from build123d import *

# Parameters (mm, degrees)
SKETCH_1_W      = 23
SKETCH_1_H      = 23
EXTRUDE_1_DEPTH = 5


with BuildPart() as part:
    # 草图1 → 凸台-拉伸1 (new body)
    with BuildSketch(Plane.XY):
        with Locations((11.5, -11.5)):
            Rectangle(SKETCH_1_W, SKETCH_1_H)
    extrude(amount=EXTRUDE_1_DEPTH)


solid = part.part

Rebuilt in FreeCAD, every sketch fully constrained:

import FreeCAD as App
import Part
import Sketcher

V = App.Vector
Q = App.Units.Quantity

doc = App.newDocument("Part")
body = doc.addObject("PartDesign::Body", "Body")

# Sketch on XY plane
sketch1 = doc.addObject("Sketcher::SketchObject", "Sketch")
body.addObject(sketch1)
sketch1.AttachmentSupport = (doc.XY_Plane, [""])
sketch1.MapMode = "FlatFace"
sketch1.addGeometry([
    Part.LineSegment(V(0, 0, 0), V(0, -23, 0)),
    Part.LineSegment(V(0, -23, 0), V(23, -23, 0)),
    Part.LineSegment(V(23, -23, 0), V(23, 0, 0)),
    Part.LineSegment(V(23, 0, 0), V(0, 0, 0)),
], False)
sketch1.addConstraint([
    Sketcher.Constraint("Coincident", 0, 2, 1, 1),
    Sketcher.Constraint("Coincident", 1, 2, 2, 1),
    Sketcher.Constraint("Coincident", 2, 2, 3, 1),
    Sketcher.Constraint("Coincident", 3, 2, 0, 1),
    Sketcher.Constraint("Vertical", 0),
    Sketcher.Constraint("Horizontal", 1),
    Sketcher.Constraint("Vertical", 2),
    Sketcher.Constraint("Horizontal", 3),
    Sketcher.Constraint("Coincident", 3, 2, -1, 1),
    Sketcher.Constraint("Equal", 3, 0),
    Sketcher.Constraint("DistanceX", 1, 1, 1, 2, Q("23 mm")),
])
pad1 = doc.addObject("PartDesign::Pad", "Pad")
body.addObject(pad1)
pad1.Profile = sketch1
pad1.Length = 5

doc.recompute()
